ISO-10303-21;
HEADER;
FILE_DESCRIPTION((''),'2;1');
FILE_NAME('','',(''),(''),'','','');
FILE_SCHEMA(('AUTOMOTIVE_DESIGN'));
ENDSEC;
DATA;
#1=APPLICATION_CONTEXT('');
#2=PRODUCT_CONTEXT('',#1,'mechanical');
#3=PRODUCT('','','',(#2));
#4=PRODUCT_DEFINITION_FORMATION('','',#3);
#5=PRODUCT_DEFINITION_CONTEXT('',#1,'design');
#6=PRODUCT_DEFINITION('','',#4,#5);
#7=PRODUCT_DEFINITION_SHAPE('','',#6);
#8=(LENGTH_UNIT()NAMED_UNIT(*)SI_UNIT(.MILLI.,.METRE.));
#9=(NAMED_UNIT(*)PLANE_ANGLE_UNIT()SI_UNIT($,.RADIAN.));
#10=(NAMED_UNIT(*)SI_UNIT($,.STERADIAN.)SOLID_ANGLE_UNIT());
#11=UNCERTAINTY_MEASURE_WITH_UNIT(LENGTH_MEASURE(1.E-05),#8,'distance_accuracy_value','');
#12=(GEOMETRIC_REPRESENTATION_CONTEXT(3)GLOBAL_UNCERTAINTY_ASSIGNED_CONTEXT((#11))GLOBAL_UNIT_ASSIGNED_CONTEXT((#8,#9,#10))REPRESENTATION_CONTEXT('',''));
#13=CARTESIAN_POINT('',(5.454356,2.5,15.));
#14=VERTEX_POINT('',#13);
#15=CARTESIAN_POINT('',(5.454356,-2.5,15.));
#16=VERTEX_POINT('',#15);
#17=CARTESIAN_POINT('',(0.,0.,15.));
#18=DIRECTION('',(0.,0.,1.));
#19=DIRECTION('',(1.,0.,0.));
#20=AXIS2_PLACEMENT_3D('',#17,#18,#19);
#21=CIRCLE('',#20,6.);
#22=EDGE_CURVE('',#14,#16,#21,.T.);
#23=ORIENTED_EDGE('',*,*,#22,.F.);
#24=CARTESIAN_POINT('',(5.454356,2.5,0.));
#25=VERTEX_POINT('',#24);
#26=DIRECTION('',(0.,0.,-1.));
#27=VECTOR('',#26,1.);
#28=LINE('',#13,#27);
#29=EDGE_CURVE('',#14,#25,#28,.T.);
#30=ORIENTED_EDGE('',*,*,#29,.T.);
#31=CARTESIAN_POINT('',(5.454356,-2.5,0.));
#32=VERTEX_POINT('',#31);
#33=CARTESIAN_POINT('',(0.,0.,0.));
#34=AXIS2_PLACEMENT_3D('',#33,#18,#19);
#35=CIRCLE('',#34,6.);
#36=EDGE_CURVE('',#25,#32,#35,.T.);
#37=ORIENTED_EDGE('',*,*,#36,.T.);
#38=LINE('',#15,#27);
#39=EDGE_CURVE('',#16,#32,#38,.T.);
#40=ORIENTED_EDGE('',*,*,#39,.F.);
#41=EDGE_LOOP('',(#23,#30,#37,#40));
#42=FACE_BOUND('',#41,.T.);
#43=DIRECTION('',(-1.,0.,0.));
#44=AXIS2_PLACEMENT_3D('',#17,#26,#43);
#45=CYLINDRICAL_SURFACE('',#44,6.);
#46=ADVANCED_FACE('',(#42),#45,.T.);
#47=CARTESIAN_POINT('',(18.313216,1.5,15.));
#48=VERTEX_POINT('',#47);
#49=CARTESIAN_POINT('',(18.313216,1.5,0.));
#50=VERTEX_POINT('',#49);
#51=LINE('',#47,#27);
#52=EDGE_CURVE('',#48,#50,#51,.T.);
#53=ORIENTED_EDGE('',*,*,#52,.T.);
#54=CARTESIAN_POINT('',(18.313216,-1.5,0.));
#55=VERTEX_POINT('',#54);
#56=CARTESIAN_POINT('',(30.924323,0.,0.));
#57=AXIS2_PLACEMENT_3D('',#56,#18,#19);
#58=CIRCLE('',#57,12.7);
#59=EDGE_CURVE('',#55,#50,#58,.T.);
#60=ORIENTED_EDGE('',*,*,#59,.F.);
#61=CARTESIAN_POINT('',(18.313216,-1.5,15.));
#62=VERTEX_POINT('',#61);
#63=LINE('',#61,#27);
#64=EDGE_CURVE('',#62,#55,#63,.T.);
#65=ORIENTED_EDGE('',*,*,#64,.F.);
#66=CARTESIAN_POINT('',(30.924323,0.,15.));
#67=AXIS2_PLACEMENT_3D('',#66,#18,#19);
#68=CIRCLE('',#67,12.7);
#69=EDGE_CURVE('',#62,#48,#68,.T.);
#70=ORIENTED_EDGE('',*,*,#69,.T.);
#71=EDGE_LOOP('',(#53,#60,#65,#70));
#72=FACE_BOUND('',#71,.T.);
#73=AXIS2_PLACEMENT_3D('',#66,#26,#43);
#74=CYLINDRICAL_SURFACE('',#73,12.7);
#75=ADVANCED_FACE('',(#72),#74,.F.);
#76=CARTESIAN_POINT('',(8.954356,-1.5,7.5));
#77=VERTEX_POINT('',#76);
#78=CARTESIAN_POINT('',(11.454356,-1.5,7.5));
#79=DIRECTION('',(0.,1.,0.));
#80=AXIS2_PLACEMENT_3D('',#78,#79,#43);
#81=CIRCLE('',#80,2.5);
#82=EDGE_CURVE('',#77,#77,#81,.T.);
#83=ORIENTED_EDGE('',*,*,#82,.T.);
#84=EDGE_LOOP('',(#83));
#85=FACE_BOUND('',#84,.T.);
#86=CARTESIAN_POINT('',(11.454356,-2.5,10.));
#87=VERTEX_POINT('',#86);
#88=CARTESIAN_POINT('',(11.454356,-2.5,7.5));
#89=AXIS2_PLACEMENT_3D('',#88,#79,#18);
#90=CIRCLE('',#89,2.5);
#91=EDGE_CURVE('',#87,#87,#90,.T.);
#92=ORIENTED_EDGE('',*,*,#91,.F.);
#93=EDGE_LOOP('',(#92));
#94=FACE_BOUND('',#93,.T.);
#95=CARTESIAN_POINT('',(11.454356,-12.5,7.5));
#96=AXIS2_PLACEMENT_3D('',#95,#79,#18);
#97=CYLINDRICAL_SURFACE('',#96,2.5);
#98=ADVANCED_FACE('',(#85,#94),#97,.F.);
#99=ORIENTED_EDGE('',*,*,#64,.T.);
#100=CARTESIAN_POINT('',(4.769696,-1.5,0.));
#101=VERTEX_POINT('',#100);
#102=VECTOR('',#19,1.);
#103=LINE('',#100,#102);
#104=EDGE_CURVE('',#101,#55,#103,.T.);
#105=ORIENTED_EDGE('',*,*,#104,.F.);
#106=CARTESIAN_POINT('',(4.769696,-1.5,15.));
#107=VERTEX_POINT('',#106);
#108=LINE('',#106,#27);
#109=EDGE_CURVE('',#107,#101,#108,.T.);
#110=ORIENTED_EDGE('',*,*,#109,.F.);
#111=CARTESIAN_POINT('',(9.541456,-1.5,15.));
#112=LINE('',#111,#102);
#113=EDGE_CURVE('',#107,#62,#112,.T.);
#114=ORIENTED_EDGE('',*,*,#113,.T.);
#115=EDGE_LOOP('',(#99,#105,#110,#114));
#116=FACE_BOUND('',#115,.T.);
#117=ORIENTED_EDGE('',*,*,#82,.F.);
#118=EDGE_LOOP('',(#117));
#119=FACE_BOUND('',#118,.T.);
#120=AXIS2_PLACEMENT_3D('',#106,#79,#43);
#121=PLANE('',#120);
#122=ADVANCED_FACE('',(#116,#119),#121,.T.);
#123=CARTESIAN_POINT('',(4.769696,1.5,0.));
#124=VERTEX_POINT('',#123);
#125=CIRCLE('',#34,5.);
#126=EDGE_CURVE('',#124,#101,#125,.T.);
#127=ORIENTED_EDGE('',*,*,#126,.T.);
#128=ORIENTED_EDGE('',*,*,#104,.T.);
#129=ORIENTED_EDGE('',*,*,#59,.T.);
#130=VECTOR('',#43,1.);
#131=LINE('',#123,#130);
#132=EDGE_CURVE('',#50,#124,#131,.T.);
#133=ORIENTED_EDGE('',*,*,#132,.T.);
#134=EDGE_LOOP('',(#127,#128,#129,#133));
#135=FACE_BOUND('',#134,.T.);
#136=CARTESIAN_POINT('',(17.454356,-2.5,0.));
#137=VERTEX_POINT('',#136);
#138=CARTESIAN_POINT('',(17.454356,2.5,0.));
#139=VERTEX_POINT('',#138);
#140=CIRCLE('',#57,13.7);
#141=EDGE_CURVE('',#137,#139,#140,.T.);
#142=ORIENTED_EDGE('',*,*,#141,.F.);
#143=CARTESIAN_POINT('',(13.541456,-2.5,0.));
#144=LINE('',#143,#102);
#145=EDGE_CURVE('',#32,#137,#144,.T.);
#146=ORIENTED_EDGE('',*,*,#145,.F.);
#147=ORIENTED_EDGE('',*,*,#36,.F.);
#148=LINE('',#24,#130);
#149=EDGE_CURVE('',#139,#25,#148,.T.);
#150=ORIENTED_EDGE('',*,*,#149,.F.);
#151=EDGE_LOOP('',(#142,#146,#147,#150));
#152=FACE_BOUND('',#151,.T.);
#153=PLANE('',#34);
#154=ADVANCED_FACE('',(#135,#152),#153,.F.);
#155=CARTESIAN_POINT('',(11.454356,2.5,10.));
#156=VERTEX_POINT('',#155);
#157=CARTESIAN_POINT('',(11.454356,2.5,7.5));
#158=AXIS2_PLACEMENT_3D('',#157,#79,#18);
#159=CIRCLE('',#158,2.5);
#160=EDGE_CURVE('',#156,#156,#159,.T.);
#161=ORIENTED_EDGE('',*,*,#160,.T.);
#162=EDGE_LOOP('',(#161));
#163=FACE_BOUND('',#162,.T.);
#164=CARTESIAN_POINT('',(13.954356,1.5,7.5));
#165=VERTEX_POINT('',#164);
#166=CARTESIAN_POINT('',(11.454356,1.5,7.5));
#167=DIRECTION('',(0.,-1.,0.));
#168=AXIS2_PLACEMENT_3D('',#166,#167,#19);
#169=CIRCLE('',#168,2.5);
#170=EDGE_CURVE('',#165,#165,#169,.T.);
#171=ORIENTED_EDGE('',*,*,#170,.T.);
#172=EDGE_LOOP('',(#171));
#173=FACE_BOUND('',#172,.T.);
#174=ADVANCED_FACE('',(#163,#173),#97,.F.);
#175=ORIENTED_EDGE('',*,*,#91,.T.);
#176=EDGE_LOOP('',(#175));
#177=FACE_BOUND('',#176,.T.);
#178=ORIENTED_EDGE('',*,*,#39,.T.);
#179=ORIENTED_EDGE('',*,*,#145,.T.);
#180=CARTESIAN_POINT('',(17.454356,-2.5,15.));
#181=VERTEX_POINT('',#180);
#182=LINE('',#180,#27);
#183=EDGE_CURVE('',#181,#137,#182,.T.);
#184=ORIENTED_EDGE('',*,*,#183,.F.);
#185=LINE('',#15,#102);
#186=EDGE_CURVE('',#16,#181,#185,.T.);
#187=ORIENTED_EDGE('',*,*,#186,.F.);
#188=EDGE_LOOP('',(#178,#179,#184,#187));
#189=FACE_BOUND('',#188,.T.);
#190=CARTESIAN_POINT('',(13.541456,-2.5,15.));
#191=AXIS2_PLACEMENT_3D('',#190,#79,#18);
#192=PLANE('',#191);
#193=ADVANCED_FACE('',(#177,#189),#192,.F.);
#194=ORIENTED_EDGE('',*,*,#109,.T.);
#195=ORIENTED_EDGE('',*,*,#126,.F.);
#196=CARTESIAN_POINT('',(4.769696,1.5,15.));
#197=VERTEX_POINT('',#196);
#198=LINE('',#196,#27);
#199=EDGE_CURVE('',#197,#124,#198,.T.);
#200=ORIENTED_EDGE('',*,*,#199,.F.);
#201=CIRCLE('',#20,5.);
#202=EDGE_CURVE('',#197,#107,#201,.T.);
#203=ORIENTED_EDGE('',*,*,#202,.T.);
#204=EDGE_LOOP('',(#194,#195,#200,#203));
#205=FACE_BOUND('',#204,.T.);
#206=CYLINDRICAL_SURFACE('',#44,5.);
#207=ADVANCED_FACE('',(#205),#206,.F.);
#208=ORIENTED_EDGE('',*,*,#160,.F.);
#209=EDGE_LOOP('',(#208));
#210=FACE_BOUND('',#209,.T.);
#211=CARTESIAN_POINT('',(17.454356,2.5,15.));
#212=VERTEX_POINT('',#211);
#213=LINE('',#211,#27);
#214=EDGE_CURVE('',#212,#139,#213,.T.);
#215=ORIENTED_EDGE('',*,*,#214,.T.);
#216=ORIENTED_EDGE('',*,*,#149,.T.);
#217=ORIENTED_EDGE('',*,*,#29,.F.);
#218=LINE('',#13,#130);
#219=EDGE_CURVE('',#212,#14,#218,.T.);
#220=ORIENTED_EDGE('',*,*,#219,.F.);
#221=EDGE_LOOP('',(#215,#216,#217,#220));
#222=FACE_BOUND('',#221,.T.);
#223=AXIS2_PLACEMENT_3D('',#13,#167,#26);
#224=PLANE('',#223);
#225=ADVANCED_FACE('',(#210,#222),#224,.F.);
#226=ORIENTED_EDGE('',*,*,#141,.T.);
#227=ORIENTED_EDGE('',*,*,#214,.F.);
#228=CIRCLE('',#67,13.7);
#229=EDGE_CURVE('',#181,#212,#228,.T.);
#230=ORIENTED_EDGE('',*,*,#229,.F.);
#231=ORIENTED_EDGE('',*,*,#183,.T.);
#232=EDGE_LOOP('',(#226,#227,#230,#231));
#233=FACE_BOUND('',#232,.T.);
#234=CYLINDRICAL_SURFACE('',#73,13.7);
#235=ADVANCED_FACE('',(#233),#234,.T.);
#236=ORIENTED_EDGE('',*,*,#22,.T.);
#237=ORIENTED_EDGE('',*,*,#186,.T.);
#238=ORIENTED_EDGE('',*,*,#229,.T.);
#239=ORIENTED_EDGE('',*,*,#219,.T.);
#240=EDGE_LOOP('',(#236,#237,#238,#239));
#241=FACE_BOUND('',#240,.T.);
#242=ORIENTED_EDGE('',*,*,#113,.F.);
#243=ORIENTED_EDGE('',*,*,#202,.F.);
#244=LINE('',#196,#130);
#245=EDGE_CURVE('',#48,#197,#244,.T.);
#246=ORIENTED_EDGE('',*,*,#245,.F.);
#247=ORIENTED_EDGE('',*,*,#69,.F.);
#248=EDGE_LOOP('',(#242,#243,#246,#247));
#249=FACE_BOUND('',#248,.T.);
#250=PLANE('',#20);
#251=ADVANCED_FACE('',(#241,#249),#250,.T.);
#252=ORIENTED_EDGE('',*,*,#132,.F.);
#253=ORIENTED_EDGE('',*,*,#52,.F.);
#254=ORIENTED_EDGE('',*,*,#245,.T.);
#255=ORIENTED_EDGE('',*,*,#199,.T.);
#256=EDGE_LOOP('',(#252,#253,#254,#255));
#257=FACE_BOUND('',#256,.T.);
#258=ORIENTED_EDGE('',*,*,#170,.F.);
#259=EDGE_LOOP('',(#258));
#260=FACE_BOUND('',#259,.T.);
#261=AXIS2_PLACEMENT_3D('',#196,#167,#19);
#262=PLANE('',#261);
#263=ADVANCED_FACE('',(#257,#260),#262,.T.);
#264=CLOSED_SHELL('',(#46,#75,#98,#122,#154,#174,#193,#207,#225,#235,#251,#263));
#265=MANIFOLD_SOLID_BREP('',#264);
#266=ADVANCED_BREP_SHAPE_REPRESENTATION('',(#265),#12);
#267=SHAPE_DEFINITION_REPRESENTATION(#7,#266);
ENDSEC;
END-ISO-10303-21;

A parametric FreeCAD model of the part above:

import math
import FreeCAD as App
import Part
import Sketcher
from FreeCAD import Vector
Q = App.Units.Quantity

doc = App.newDocument("Part")
body = doc.addObject("PartDesign::Body", "Body")

# Sketch on XY plane
sketch1 = body.newObject("Sketcher::SketchObject", "Sketch")
sketch1.AttachmentSupport = (doc.getObject("XY_Plane"), [""])
sketch1.MapMode = "FlatFace"
sketch1.addGeometry([
    Part.LineSegment(Vector(17.454356, 2.5, 0), Vector(5.454356, 2.5, 0)),  # 0
    Part.ArcOfCircle(Part.Circle(Vector(0, 0, 0), Vector(0, 0, 1), 6), math.radians(24.624318), math.radians(335.375682)),  # 1
    Part.LineSegment(Vector(5.454356, -2.5, 0), Vector(17.454356, -2.5, 0)),  # 2
    Part.ArcOfCircle(Part.Circle(Vector(30.924323, 0, 0), Vector(0, 0, 1), 13.7), math.radians(-169.485652), math.radians(169.485652)),  # 3
    Part.LineSegment(Vector(4.769696, 1.5, 0), Vector(18.313216, 1.5, 0)),  # 4
    Part.ArcOfCircle(Part.Circle(Vector(30.924323, 0, 0), Vector(0, 0, 1), 12.7), math.radians(-173.216949), math.radians(173.216949)),  # 5
    Part.LineSegment(Vector(18.313216, -1.5, 0), Vector(4.769696, -1.5, 0)),  # 6
    Part.ArcOfCircle(Part.Circle(Vector(0, 0, 0), Vector(0, 0, 1), 5), math.radians(17.457603), math.radians(342.542397)),  # 7
], False)
sketch1.addConstraint([
    Sketcher.Constraint("Coincident", 0, 2, 1, 1),
    Sketcher.Constraint("Coincident", 1, 2, 2, 1),
    Sketcher.Constraint("Coincident", 2, 2, 3, 1),
    Sketcher.Constraint("Coincident", 3, 2, 0, 1),
    Sketcher.Constraint("Coincident", 4, 2, 5, 2),
    Sketcher.Constraint("Coincident", 5, 1, 6, 1),
    Sketcher.Constraint("Coincident", 6, 2, 7, 2),
    Sketcher.Constraint("Coincident", 7, 1, 4, 1),
    Sketcher.Constraint("Horizontal", 0),
    Sketcher.Constraint("Horizontal", 2),
    Sketcher.Constraint("Horizontal", 4),
    Sketcher.Constraint("Horizontal", 6),
    Sketcher.Constraint("Coincident", 1, 3, -1, 1),
    Sketcher.Constraint("Coincident", 7, 3, -1, 1),
    Sketcher.Constraint("Coincident", 5, 3, 3, 3),
    Sketcher.Constraint("Symmetric", 2, 2, 3, 2, -1),
    Sketcher.Constraint("Vertical", 4, 2, 5, 1),
    Sketcher.Constraint("Radius", 1, Q("6 mm")),
    Sketcher.Constraint("Radius", 7, Q("5 mm")),
    Sketcher.Constraint("Radius", 3, Q("13.7 mm")),
    Sketcher.Constraint("Radius", 5, Q("12.7 mm")),
    Sketcher.Constraint("DistanceX", 0, 2, 0, 1, Q("12 mm")),
    Sketcher.Constraint("DistanceY", 1, 2, 0, 2, Q("5 mm")),
    Sketcher.Constraint("DistanceY", 4, 2, 3, 2, Q("1 mm")),
])
pad1 = body.newObject("PartDesign::Pad", "Pad")
pad1.Profile = sketch1
pad1.Length = 15

# Sketch on XZ plane
sketch2 = body.newObject("Sketcher::SketchObject", "Sketch001")
sketch2.AttachmentSupport = (doc.getObject("XZ_Plane"), [""])
sketch2.MapMode = "FlatFace"
sketch2.AttachmentOffset = App.Placement(Vector(0, 0, -2.5), App.Rotation())
sketch2.addGeometry(Part.Circle(Vector(11.454356, 7.5, 0), Vector(0, 0, 1), 2.5), False)
sketch2.addConstraint([
    Sketcher.Constraint("Diameter", 0, Q("5 mm")),
    Sketcher.Constraint("DistanceY", -1, 1, 0, 3, Q("7.5 mm")),
    Sketcher.Constraint("DistanceX", -1, 1, 0, 3, Q("11.454356 mm")),
])
pocket1 = body.newObject("PartDesign::Pocket", "Pocket")
pocket1.Profile = sketch2
pocket1.Length = 15
pocket1.Reversed = True

doc.recompute()
